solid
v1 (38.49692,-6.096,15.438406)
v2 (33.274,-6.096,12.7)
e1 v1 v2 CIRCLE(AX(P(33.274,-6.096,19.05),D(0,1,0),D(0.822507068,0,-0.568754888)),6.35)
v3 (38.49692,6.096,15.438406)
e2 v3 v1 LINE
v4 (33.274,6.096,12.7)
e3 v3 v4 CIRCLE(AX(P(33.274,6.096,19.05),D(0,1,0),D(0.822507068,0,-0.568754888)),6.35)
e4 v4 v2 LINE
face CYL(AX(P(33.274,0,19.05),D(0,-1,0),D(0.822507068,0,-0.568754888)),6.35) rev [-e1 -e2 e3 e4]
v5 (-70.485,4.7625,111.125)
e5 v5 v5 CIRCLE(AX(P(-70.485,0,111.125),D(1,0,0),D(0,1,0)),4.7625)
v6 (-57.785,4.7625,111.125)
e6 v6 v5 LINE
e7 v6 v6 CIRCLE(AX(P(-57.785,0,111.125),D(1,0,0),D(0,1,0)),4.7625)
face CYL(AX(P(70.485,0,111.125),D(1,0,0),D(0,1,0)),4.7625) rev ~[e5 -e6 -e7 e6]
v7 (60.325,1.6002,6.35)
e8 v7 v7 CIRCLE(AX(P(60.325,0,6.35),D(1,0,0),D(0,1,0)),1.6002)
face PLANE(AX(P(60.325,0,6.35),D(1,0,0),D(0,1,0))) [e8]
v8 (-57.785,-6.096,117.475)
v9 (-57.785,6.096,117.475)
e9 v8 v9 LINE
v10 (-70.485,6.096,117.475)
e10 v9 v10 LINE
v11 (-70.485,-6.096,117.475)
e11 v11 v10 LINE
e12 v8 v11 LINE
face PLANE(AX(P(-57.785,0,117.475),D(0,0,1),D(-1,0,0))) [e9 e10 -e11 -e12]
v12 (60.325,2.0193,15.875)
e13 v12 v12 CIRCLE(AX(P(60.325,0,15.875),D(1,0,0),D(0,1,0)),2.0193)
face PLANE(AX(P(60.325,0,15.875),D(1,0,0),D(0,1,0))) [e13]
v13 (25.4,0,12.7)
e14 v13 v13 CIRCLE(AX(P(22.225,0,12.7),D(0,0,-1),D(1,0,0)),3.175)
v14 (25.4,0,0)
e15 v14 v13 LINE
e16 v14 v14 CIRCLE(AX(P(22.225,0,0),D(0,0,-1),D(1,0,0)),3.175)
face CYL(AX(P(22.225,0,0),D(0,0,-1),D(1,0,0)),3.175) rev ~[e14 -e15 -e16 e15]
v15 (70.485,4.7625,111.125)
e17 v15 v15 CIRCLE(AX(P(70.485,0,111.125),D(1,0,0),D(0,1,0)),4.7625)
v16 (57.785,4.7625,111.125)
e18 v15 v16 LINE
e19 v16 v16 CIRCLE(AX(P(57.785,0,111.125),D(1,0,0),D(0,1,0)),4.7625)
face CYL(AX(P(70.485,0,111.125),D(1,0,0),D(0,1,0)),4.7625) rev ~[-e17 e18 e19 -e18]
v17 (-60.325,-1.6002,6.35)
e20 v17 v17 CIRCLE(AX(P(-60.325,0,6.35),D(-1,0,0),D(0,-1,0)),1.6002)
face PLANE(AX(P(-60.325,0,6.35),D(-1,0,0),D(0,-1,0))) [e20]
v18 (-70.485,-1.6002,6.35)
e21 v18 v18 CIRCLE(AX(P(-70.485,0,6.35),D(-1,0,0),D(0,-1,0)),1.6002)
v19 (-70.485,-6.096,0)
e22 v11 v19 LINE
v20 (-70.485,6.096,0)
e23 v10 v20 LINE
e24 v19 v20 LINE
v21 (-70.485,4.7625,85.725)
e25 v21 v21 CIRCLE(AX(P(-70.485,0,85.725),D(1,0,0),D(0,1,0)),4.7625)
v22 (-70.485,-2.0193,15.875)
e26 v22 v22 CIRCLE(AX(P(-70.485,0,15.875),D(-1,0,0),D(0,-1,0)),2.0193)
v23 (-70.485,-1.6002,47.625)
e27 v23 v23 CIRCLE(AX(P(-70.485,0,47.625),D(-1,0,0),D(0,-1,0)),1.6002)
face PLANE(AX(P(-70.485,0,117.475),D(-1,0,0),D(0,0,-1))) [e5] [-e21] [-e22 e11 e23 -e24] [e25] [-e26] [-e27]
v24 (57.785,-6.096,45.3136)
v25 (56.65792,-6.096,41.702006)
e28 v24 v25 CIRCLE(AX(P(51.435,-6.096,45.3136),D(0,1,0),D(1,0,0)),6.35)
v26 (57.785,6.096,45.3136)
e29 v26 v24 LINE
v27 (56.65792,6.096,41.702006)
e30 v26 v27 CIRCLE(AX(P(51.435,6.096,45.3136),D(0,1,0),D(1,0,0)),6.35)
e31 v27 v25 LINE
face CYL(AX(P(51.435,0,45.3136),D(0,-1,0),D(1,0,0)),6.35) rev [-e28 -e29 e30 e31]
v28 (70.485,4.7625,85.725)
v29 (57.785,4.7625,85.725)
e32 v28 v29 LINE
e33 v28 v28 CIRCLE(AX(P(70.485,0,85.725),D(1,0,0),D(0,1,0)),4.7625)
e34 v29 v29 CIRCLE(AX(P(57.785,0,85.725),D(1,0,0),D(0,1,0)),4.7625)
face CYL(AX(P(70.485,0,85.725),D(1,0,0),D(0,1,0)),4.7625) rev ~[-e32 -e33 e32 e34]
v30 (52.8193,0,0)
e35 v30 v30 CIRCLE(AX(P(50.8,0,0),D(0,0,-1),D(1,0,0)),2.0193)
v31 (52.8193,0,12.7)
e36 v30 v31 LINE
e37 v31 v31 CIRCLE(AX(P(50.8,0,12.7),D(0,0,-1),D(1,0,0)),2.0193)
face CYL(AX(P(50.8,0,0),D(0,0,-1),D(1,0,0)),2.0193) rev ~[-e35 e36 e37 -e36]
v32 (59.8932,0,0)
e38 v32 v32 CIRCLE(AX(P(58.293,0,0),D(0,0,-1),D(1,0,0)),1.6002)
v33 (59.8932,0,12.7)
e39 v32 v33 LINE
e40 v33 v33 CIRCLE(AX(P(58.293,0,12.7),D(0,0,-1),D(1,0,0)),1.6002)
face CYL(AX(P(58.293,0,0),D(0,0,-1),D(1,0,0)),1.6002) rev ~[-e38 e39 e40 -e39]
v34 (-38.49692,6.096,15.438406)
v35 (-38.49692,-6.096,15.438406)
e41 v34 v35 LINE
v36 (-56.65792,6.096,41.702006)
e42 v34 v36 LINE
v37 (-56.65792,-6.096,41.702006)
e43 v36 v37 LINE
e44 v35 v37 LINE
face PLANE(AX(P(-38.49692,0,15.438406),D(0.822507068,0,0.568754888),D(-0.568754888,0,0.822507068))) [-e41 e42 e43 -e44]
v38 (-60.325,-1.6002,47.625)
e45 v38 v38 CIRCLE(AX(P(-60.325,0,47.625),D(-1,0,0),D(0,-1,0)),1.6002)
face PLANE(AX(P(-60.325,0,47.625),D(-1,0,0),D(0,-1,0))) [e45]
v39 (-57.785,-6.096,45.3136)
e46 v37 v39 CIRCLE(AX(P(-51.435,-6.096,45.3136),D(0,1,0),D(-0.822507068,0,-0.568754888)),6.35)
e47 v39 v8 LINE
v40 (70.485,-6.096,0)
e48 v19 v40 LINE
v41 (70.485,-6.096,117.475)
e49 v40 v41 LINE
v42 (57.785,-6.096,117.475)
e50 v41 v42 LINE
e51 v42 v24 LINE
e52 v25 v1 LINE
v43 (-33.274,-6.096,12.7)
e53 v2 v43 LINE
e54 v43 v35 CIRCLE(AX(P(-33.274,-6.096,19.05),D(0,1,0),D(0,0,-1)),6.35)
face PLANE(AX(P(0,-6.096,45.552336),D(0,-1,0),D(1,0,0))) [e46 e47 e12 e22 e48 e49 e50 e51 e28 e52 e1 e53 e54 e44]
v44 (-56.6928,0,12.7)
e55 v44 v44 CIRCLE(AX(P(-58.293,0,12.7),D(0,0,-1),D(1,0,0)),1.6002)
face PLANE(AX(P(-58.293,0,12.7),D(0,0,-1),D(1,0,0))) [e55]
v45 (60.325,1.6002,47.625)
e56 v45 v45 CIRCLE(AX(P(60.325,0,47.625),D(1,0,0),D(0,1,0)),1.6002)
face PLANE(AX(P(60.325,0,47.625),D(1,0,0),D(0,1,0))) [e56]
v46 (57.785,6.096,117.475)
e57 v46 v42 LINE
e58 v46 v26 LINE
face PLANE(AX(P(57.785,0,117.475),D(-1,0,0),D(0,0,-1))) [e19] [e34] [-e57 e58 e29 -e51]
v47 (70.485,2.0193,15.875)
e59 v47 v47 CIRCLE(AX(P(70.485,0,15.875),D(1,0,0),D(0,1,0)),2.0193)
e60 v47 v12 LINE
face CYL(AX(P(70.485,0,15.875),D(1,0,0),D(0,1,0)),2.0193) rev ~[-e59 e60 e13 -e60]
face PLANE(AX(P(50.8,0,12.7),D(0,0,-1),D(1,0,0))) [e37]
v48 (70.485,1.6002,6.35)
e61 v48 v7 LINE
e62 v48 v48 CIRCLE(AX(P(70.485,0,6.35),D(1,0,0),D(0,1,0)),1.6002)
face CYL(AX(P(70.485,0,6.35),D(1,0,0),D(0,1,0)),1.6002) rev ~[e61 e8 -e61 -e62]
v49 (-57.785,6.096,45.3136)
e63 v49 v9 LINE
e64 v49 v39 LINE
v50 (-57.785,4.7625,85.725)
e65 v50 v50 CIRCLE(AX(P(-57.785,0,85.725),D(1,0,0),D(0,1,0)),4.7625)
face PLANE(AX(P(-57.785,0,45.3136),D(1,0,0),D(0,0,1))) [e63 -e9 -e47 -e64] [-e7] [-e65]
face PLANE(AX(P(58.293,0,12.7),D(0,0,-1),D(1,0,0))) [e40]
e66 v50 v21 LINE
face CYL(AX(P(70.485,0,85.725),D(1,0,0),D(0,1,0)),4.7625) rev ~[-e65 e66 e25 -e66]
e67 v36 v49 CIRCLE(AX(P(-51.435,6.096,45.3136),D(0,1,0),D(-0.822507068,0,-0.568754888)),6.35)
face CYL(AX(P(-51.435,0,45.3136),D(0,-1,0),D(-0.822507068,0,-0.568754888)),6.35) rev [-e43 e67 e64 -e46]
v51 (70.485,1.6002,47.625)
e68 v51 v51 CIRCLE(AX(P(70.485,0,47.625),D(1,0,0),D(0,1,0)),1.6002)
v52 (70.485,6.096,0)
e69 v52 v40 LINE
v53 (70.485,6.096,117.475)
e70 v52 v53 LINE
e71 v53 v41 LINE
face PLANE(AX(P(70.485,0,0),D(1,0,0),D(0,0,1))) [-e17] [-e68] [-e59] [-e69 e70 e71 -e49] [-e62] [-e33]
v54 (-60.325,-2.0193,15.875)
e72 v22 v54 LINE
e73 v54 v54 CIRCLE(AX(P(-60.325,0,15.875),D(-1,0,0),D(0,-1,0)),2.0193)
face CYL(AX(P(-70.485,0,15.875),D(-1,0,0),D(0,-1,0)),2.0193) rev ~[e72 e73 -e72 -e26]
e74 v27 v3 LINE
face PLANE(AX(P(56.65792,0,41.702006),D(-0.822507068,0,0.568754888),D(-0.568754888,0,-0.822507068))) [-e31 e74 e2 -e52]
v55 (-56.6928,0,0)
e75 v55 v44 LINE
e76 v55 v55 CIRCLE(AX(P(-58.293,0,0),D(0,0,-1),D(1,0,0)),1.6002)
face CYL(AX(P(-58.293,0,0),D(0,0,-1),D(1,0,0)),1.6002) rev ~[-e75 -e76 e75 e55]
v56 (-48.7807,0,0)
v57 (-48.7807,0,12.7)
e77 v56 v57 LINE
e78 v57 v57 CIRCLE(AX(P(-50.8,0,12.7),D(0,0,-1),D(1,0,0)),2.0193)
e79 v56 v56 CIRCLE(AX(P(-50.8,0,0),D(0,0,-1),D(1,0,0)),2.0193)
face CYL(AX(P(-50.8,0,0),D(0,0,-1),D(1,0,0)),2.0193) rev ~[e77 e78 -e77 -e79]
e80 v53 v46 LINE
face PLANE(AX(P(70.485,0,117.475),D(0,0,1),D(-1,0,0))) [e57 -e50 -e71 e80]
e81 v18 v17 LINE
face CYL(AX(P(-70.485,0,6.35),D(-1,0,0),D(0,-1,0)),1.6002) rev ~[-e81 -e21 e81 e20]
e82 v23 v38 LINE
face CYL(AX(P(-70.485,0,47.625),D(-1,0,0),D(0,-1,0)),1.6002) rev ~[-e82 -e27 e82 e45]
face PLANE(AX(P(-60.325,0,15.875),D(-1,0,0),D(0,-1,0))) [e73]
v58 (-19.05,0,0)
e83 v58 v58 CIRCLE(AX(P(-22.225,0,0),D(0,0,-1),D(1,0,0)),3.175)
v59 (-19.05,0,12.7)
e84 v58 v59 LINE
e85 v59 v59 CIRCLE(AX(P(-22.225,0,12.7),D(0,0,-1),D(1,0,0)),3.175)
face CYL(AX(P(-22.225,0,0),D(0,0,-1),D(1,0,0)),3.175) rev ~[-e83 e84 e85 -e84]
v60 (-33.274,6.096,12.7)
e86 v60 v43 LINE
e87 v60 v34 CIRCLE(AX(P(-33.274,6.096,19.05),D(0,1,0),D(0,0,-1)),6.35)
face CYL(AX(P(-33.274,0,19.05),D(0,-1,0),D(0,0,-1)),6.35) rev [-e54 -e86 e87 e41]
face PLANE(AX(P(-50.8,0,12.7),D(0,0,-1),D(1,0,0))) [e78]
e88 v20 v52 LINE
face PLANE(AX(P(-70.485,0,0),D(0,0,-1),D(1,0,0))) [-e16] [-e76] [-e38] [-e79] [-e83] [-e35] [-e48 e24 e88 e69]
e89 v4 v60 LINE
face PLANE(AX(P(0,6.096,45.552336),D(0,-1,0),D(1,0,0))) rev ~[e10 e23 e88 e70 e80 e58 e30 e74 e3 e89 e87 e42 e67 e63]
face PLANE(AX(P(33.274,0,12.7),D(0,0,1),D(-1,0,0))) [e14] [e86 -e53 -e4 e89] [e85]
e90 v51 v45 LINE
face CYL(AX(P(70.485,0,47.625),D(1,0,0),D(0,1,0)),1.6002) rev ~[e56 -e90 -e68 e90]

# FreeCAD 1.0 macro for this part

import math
import FreeCAD as App
import Part
import Sketcher
Q = App.Units.Quantity

doc = App.newDocument("Part")
body = doc.addObject("PartDesign::Body", "Body")

# Sketch on XZ plane
sketch1 = body.newObject("Sketcher::SketchObject", "Sketch")
sketch1.AttachmentSupport = (doc.getObject("XZ_Plane"), [""])
sketch1.MapMode = "FlatFace"
sketch1.addGeometry([
    Part.LineSegment(App.Vector(-70.5, 0, 0), App.Vector(70.5, 0, 0)),  # 0
    Part.LineSegment(App.Vector(70.5, 0, 0), App.Vector(70.5, 117.5, 0)),  # 1
    Part.LineSegment(App.Vector(70.5, 117.5, 0), App.Vector(57.8, 117.5, 0)),  # 2
    Part.LineSegment(App.Vector(57.8, 117.5, 0), App.Vector(57.8, 45.3, 0)),  # 3
    Part.ArcOfCircle(Part.Circle(App.Vector(51.4, 45.3, 0), App.Vector(0, 0, 1), 6.4), math.radians(-35), math.radians(0)),  # 4
    Part.LineSegment(App.Vector(56.7, 41.7, 0), App.Vector(38.5, 15.4, 0)),  # 5
    Part.ArcOfCircle(Part.Circle(App.Vector(33.3, 19.1, 0), App.Vector(0, 0, 1), 6.3), math.radians(-90), math.radians(-35)),  # 6
    Part.LineSegment(App.Vector(33.3, 12.7, 0), App.Vector(-33.3, 12.7, 0)),  # 7
    Part.ArcOfCircle(Part.Circle(App.Vector(-33.3, 19.1, 0), App.Vector(0, 0, 1), 6.3), math.radians(-145), math.radians(-90)),  # 8
    Part.LineSegment(App.Vector(-38.5, 15.4, 0), App.Vector(-56.7, 41.7, 0)),  # 9
    Part.ArcOfCircle(Part.Circle(App.Vector(-51.4, 45.3, 0), App.Vector(0, 0, 1), 6.4), math.radians(180), math.radians(215)),  # 10
    Part.LineSegment(App.Vector(-57.8, 45.3, 0), App.Vector(-57.8, 117.5, 0)),  # 11
    Part.LineSegment(App.Vector(-57.8, 117.5, 0), App.Vector(-70.5, 117.5, 0)),  # 12
    Part.LineSegment(App.Vector(-70.5, 117.5, 0), App.Vector(-70.5, 0, 0)),  # 13
], False)
sketch1.addConstraint([
    Sketcher.Constraint("Coincident", 0, 2, 1, 1),
    Sketcher.Constraint("Coincident", 1, 2, 2, 1),
    Sketcher.Constraint("Coincident", 2, 2, 3, 1),
    Sketcher.Constraint("Tangent", 3, 2, 4, 2),
    Sketcher.Constraint("Tangent", 4, 1, 5, 1),
    Sketcher.Constraint("Tangent", 5, 2, 6, 2),
    Sketcher.Constraint("Tangent", 6, 1, 7, 1),
    Sketcher.Constraint("Tangent", 7, 2, 8, 2),
    Sketcher.Constraint("Tangent", 8, 1, 9, 1),
    Sketcher.Constraint("Tangent", 9, 2, 10, 2),
    Sketcher.Constraint("Tangent", 10, 1, 11, 1),
    Sketcher.Constraint("Coincident", 11, 2, 12, 1),
    Sketcher.Constraint("Coincident", 12, 2, 13, 1),
    Sketcher.Constraint("Coincident", 13, 2, 0, 1),
    Sketcher.Constraint("Horizontal", 0),
    Sketcher.Constraint("Vertical", 1),
    Sketcher.Constraint("Horizontal", 2),
    Sketcher.Constraint("Vertical", 3),
    Sketcher.Constraint("Horizontal", 7),
    Sketcher.Constraint("Vertical", 11),
    Sketcher.Constraint("Horizontal", 12),
    Sketcher.Constraint("Vertical", 13),
    Sketcher.Constraint("Equal", 4, 6),
    Sketcher.Constraint("Equal", 6, 8),
    Sketcher.Constraint("Equal", 8, 10),
    Sketcher.Constraint("Symmetric", 0, 2, 13, 2, -1, 1),
    Sketcher.Constraint("Symmetric", 4, 3, 10, 3, -2),
    Sketcher.Constraint("Horizontal", 5, 2, 8, 1),
    Sketcher.Constraint("Horizontal", 2, 2, 11, 2),
    Sketcher.Constraint("Radius", 4, Q("0.25 in")),
    Sketcher.Constraint("DistanceX", 2, 2, 2, 1, Q("0.5 in")),
    Sketcher.Constraint("DistanceX", 0, 1, 0, 2, Q("5.55 in")),
    Sketcher.Constraint("DistanceX", 7, 2, 7, 1, Q("2.62 in")),
    Sketcher.Constraint("DistanceY", -1, 1, 6, 1, Q("0.5 in")),
    Sketcher.Constraint("DistanceY", 1, 1, 1, 2, Q("4.625 in")),
    Sketcher.Constraint("DistanceY", 3, 2, 3, 1, Q("2.841 in")),
])
pad1 = body.newObject("PartDesign::Pad", "Pad")
pad1.Profile = sketch1
pad1.Length = Q("0.48 in")
pad1.Midplane = True

# Sketch on YZ plane
sketch2 = body.newObject("Sketcher::SketchObject", "Sketch001")
sketch2.AttachmentSupport = (doc.getObject("YZ_Plane"), [""])
sketch2.MapMode = "FlatFace"
sketch2.AttachmentOffset = App.Placement(App.Vector(0, 0, 2.775 * 25.4), App.Rotation())
sketch2.addGeometry([
    Part.Circle(App.Vector(0, 111.1, 0), App.Vector(0, 0, 1), 4.8),
    Part.Circle(App.Vector(0, 85.7, 0), App.Vector(0, 0, 1), 4.8),
], False)
sketch2.addConstraint([
    Sketcher.Constraint("Equal", 0, 1),
    Sketcher.Constraint("PointOnObject", 0, 3, -2),
    Sketcher.Constraint("PointOnObject", 1, 3, -2),
    Sketcher.Constraint("Diameter", 0, Q("0.375 in")),
    Sketcher.Constraint("DistanceY", 1, 3, 0, 3, Q("1 in")),
    Sketcher.Constraint("DistanceY", -1, 1, 0, 3, Q("4.375 in")),
])
pocket1 = body.newObject("PartDesign::Pocket", "Pocket")
pocket1.Profile = sketch2
pocket1.Type = "ThroughAll"

# Sketch on XY plane
sketch3 = body.newObject("Sketcher::SketchObject", "Sketch002")
sketch3.AttachmentSupport = (doc.getObject("XY_Plane"), [""])
sketch3.MapMode = "FlatFace"
sketch3.addGeometry([
    Part.Circle(App.Vector(-22.2, 0, 0), App.Vector(0, 0, 1), 3.2),
    Part.Circle(App.Vector(22.2, 0, 0), App.Vector(0, 0, 1), 3.2),
], False)
sketch3.addConstraint([
    Sketcher.Constraint("Equal", 0, 1),
    Sketcher.Constraint("Symmetric", 0, 3, 1, 3, -1, 1),
    Sketcher.Constraint("PointOnObject", 0, 3, -1),
    Sketcher.Constraint("Diameter", 0, Q("0.25 in")),
    Sketcher.Constraint("DistanceX", 0, 3, 1, 3, Q("1.75 in")),
])
pocket2 = body.newObject("PartDesign::Pocket", "Pocket001")
pocket2.Profile = sketch3
pocket2.Type = "ThroughAll"
pocket2.Reversed = True

# Sketch on XY plane
sketch4 = body.newObject("Sketcher::SketchObject", "Sketch003")
sketch4.AttachmentSupport = (doc.getObject("XY_Plane"), [""])
sketch4.MapMode = "FlatFace"
sketch4.addGeometry([
    Part.Circle(App.Vector(-50.8, 0, 0), App.Vector(0, 0, 1), 2),
    Part.Circle(App.Vector(-58.3, 0, 0), App.Vector(0, 0, 1), 1.6),
    Part.Circle(App.Vector(50.8, 0, 0), App.Vector(0, 0, 1), 2),
    Part.Circle(App.Vector(58.3, 0, 0), App.Vector(0, 0, 1), 1.6),
], False)
sketch4.addConstraint([
    Sketcher.Constraint("Equal", 0, 2),
    Sketcher.Constraint("Equal", 1, 3),
    Sketcher.Constraint("Symmetric", 0, 3, 2, 3, -1, 1),
    Sketcher.Constraint("Symmetric", 1, 3, 3, 3, -1, 1),
    Sketcher.Constraint("PointOnObject", 0, 3, -1),
    Sketcher.Constraint("PointOnObject", 1, 3, -1),
    Sketcher.Constraint("Diameter", 0, Q("0.159 in")),
    Sketcher.Constraint("Diameter", 1, Q("0.126 in")),
    Sketcher.Constraint("DistanceX", 0, 3, -1, 1, Q("2 in")),
    Sketcher.Constraint("DistanceX", 1, 3, 3, 3, Q("4.59 in")),
])
pocket3 = body.newObject("PartDesign::Pocket", "Pocket002")
pocket3.Profile = sketch4
pocket3.Length = Q("0.5 in")
pocket3.Reversed = True

# Sketch on YZ plane
sketch5 = body.newObject("Sketcher::SketchObject", "Sketch004")
sketch5.AttachmentSupport = (doc.getObject("YZ_Plane"), [""])
sketch5.MapMode = "FlatFace"
sketch5.AttachmentOffset = App.Placement(App.Vector(0, 0, 2.775 * 25.4), App.Rotation())
sketch5.addGeometry([
    Part.Circle(App.Vector(0, 6.3, 0), App.Vector(0, 0, 1), 1.6),
    Part.Circle(App.Vector(0, 47.6, 0), App.Vector(0, 0, 1), 1.6),
    Part.Circle(App.Vector(0, 15.9, 0), App.Vector(0, 0, 1), 2),
], False)
sketch5.addConstraint([
    Sketcher.Constraint("Equal", 0, 1),
    Sketcher.Constraint("PointOnObject", 0, 3, -2),
    Sketcher.Constraint("PointOnObject", 1, 3, -2),
    Sketcher.Constraint("PointOnObject", 2, 3, -2),
    Sketcher.Constraint("Diameter", 0, Q("0.126 in")),
    Sketcher.Constraint("Diameter", 2, Q("0.159 in")),
    Sketcher.Constraint("DistanceY", -1, 1, 0, 3, Q("0.25 in")),
    Sketcher.Constraint("DistanceY", 2, 3, 1, 3, Q("1.25 in")),
    Sketcher.Constraint("DistanceY", -1, 1, 1, 3, Q("1.875 in")),
])
pocket4 = body.newObject("PartDesign::Pocket", "Pocket003")
pocket4.Profile = sketch5
pocket4.Length = Q("0.4 in")

# Sketch on YZ plane
sketch6 = body.newObject("Sketcher::SketchObject", "Sketch005")
sketch6.AttachmentSupport = (doc.getObject("YZ_Plane"), [""])
sketch6.MapMode = "FlatFace"
sketch6.AttachmentOffset = App.Placement(App.Vector(0, 0, -2.775 * 25.4), App.Rotation())
sketch6.addGeometry([
    Part.Circle(App.Vector(0, 6.3, 0), App.Vector(0, 0, 1), 1.6),
    Part.Circle(App.Vector(0, 15.9, 0), App.Vector(0, 0, 1), 2),
    Part.Circle(App.Vector(0, 47.6, 0), App.Vector(0, 0, 1), 1.6),
], False)
sketch6.addConstraint([
    Sketcher.Constraint("Equal", 0, 2),
    Sketcher.Constraint("PointOnObject", 0, 3, -2),
    Sketcher.Constraint("PointOnObject", 1, 3, -2),
    Sketcher.Constraint("PointOnObject", 2, 3, -2),
    Sketcher.Constraint("Diameter", 0, Q("0.126 in")),
    Sketcher.Constraint("Diameter", 1, Q("0.159 in")),
    Sketcher.Constraint("DistanceY", -1, 1, 0, 3, Q("0.25 in")),
    Sketcher.Constraint("DistanceY", 1, 3, 2, 3, Q("1.25 in")),
    Sketcher.Constraint("DistanceY", -1, 1, 1, 3, Q("0.625 in")),
])
pocket5 = body.newObject("PartDesign::Pocket", "Pocket004")
pocket5.Profile = sketch6
pocket5.Length = Q("0.4 in")
pocket5.Reversed = True

doc.recompute()
